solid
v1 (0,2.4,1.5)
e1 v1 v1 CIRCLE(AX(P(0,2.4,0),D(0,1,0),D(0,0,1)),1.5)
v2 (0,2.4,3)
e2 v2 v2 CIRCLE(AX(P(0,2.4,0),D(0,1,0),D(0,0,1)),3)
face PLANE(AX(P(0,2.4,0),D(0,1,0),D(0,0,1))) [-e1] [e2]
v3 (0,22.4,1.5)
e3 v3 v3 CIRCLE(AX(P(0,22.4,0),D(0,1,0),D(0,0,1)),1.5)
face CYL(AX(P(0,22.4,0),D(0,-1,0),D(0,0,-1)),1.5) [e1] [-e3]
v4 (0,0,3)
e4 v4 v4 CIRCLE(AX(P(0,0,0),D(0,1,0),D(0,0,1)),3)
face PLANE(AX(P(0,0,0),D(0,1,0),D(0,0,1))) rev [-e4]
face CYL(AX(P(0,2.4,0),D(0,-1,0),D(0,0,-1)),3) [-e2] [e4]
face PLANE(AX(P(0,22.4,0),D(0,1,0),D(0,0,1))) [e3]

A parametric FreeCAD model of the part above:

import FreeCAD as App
import Part
import Sketcher
from FreeCAD import Vector
Q = App.Units.Quantity

doc = App.newDocument("Part")
params = doc.addObject("Spreadsheet::Sheet", "Params")
for row, (alias, value) in enumerate([
    ("sketch1_diameter", "6 mm"),
    ("pad1_length", "2.4 mm"),
    ("sketch2_diameter", "3 mm"),
    ("pad2_length", "20 mm"),
], start=1):
    params.set(f"A{row}", alias)
    params.set(f"B{row}", "=" + value)
    params.setAlias(f"B{row}", alias)

body = doc.addObject("PartDesign::Body", "Body")

sketch1 = body.newObject("Sketcher::SketchObject", "Sketch")
sketch1.AttachmentSupport = (doc.getObject("XZ_Plane"), [""])
sketch1.MapMode = "FlatFace"
sketch1.addGeometry(Part.Circle(Vector(0, 0, 0), Vector(0, 0, 1), 3), False)
sketch1.addConstraint([
    Sketcher.Constraint("Coincident", 0, 3, -1, 1),
    Sketcher.Constraint("Diameter", 0, Q("6 mm")),
])
sketch1.setExpression("Constraints[1]", "Params.sketch1_diameter")
pad1 = body.newObject("PartDesign::Pad", "Pad")
pad1.Profile = sketch1
pad1.setExpression("Length", "Params.pad1_length")
pad1.Reversed = True

sketch2 = body.newObject("Sketcher::SketchObject", "Sketch001")
sketch2.AttachmentSupport = (doc.getObject("XZ_Plane"), [""])
sketch2.MapMode = "FlatFace"
sketch2.AttachmentOffset = App.Placement(Vector(0, 0, -2.4), App.Rotation())
sketch2.addGeometry(Part.Circle(Vector(0, 0, 0), Vector(0, 0, 1), 1.5), False)
sketch2.addConstraint([
    Sketcher.Constraint("Coincident", 0, 3, -1, 1),
    Sketcher.Constraint("Diameter", 0, Q("3 mm")),
])
sketch2.setExpression("Constraints[1]", "Params.sketch2_diameter")
pad2 = body.newObject("PartDesign::Pad", "Pad001")
pad2.Profile = sketch2
pad2.setExpression("Length", "Params.pad2_length")
pad2.Reversed = True

doc.recompute()
